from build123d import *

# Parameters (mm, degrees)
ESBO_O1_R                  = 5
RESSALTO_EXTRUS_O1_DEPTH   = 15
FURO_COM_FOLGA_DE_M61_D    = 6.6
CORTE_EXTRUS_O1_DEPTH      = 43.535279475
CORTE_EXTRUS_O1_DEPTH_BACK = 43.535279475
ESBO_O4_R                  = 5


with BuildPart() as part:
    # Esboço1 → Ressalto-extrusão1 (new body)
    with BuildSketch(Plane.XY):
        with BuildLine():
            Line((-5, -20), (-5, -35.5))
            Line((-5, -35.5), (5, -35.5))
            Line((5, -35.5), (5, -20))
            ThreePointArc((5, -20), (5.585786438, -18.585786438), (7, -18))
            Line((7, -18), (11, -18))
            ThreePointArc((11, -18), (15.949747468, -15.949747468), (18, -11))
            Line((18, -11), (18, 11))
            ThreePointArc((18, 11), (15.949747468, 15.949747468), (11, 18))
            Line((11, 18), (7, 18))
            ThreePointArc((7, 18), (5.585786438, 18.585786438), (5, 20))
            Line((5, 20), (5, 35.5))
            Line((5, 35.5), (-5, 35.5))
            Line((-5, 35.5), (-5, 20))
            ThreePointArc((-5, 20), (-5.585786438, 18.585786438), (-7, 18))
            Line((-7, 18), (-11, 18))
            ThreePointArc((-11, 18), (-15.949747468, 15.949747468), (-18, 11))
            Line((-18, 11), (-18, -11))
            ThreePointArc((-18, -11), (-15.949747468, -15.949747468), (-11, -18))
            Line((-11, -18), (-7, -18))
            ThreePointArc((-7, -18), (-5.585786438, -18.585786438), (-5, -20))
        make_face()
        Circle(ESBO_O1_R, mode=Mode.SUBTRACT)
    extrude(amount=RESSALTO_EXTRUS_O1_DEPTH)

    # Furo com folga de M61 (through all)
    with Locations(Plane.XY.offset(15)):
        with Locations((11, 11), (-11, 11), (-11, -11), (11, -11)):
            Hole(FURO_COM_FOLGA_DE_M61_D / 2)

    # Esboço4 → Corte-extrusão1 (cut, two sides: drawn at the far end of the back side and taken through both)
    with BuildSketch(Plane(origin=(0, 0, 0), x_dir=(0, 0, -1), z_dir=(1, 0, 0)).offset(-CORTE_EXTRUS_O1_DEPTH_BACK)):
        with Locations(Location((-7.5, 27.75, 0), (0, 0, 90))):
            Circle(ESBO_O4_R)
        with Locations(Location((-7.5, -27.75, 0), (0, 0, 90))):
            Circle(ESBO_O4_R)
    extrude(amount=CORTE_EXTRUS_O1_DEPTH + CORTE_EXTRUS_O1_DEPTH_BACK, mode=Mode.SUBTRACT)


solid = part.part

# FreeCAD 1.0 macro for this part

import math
import FreeCAD as App
import Part
import Sketcher

V = App.Vector

doc = App.newDocument("Part")
params = doc.addObject("Spreadsheet::Sheet", "Params")
for row, (alias, value) in enumerate([
    ("sketch1_diameter", "10 mm"),
    ("sketch1_radius", "2 mm"),
    ("sketch1_radius2", "7 mm"),
    ("sketch1_width", "10 mm"),
    ("sketch1_width2", "4 mm"),
    ("pad1_length", "15 mm"),
    ("sketch2_diameter", "6.6 mm"),
    ("hole_diameter", "6.6 mm"),
    ("sketch3_diameter", "10 mm"),
], start=1):
    params.set(f"A{row}", alias)
    params.set(f"B{row}", "=" + value)
    params.setAlias(f"B{row}", alias)

body = doc.addObject("PartDesign::Body", "Body")

# Sketch on XY plane
sketch1 = body.newObject("Sketcher::SketchObject", "Sketch")
sketch1.AttachmentSupport = (doc.getObject("XY_Plane"), [""])
sketch1.MapMode = "FlatFace"
sketch1.addGeometry(Part.LineSegment(V(-5, -20, 0), V(-5, -35.5, 0)), False)
sketch1.addGeometry(Part.LineSegment(V(-5, -35.5, 0), V(5, -35.5, 0)), False)
sketch1.addGeometry(Part.LineSegment(V(5, -35.5, 0), V(5, -20, 0)), False)
sketch1.addGeometry(Part.ArcOfCircle(Part.Circle(V(7, -20, 0), V(0, 0, 1), 2), math.radians(90), math.radians(180)), False)
sketch1.addGeometry(Part.LineSegment(V(7, -18, 0), V(11, -18, 0)), False)
sketch1.addGeometry(Part.ArcOfCircle(Part.Circle(V(11, -11, 0), V(0, 0, 1), 7), math.radians(-90), math.radians(0)), False)
sketch1.addGeometry(Part.LineSegment(V(18, -11, 0), V(18, 11, 0)), False)
sketch1.addGeometry(Part.ArcOfCircle(Part.Circle(V(11, 11, 0), V(0, 0, 1), 7), math.radians(0), math.radians(90)), False)
sketch1.addGeometry(Part.LineSegment(V(11, 18, 0), V(7, 18, 0)), False)
sketch1.addGeometry(Part.ArcOfCircle(Part.Circle(V(7, 20, 0), V(0, 0, 1), 2), math.radians(-180), math.radians(-90)), False)
sketch1.addGeometry(Part.LineSegment(V(5, 20, 0), V(5, 35.5, 0)), False)
sketch1.addGeometry(Part.LineSegment(V(5, 35.5, 0), V(-5, 35.5, 0)), False)
sketch1.addGeometry(Part.LineSegment(V(-5, 35.5, 0), V(-5, 20, 0)), False)
sketch1.addGeometry(Part.ArcOfCircle(Part.Circle(V(-7, 20, 0), V(0, 0, 1), 2), math.radians(-90), math.radians(0)), False)
sketch1.addGeometry(Part.LineSegment(V(-7, 18, 0), V(-11, 18, 0)), False)
sketch1.addGeometry(Part.ArcOfCircle(Part.Circle(V(-11, 11, 0), V(0, 0, 1), 7), math.radians(90), math.radians(180)), False)
sketch1.addGeometry(Part.LineSegment(V(-18, 11, 0), V(-18, -11, 0)), False)
sketch1.addGeometry(Part.ArcOfCircle(Part.Circle(V(-11, -11, 0), V(0, 0, 1), 7), math.radians(-180), math.radians(-90)), False)
sketch1.addGeometry(Part.LineSegment(V(-11, -18, 0), V(-7, -18, 0)), False)
sketch1.addGeometry(Part.ArcOfCircle(Part.Circle(V(-7, -20, 0), V(0, 0, 1), 2), math.radians(0), math.radians(90)), False)
sketch1.addGeometry(Part.Circle(V(0, 0, 0), V(0, 0, 1), 5), False)
sketch1.addConstraint(Sketcher.Constraint("Coincident", 0, 2, 1, 1))
sketch1.addConstraint(Sketcher.Constraint("Coincident", 1, 2, 2, 1))
sketch1.addConstraint(Sketcher.Constraint("Tangent", 2, 2, 3, 2))
sketch1.addConstraint(Sketcher.Constraint("Tangent", 3, 1, 4, 1))
sketch1.addConstraint(Sketcher.Constraint("Tangent", 4, 2, 5, 1))
sketch1.addConstraint(Sketcher.Constraint("Tangent", 5, 2, 6, 1))
sketch1.addConstraint(Sketcher.Constraint("Tangent", 6, 2, 7, 1))
sketch1.addConstraint(Sketcher.Constraint("Tangent", 7, 2, 8, 1))
sketch1.addConstraint(Sketcher.Constraint("Tangent", 8, 2, 9, 2))
sketch1.addConstraint(Sketcher.Constraint("Tangent", 9, 1, 10, 1))
sketch1.addConstraint(Sketcher.Constraint("Coincident", 10, 2, 11, 1))
sketch1.addConstraint(Sketcher.Constraint("Coincident", 11, 2, 12, 1))
sketch1.addConstraint(Sketcher.Constraint("Tangent", 12, 2, 13, 2))
sketch1.addConstraint(Sketcher.Constraint("Tangent", 13, 1, 14, 1))
sketch1.addConstraint(Sketcher.Constraint("Tangent", 14, 2, 15, 1))
sketch1.addConstraint(Sketcher.Constraint("Tangent", 15, 2, 16, 1))
sketch1.addConstraint(Sketcher.Constraint("Tangent", 16, 2, 17, 1))
sketch1.addConstraint(Sketcher.Constraint("Tangent", 17, 2, 18, 1))
sketch1.addConstraint(Sketcher.Constraint("Tangent", 18, 2, 19, 2))
sketch1.addConstraint(Sketcher.Constraint("Tangent", 19, 1, 0, 1))
sketch1.addConstraint(Sketcher.Constraint("Vertical", 0))
sketch1.addConstraint(Sketcher.Constraint("Horizontal", 1))
sketch1.addConstraint(Sketcher.Constraint("Vertical", 2))
sketch1.addConstraint(Sketcher.Constraint("Horizontal", 4))
sketch1.addConstraint(Sketcher.Constraint("Vertical", 6))
sketch1.addConstraint(Sketcher.Constraint("Horizontal", 8))
sketch1.addConstraint(Sketcher.Constraint("Vertical", 10))
sketch1.addConstraint(Sketcher.Constraint("Horizontal", 11))
sketch1.addConstraint(Sketcher.Constraint("Vertical", 12))
sketch1.addConstraint(Sketcher.Constraint("Horizontal", 14))
sketch1.addConstraint(Sketcher.Constraint("Vertical", 16))
sketch1.addConstraint(Sketcher.Constraint("Horizontal", 18))
sketch1.addConstraint(Sketcher.Constraint("Coincident", 20, 3, -1, 1))
sketch1.addConstraint(Sketcher.Constraint("Equal", 5, 7))
sketch1.addConstraint(Sketcher.Constraint("Equal", 3, 9))
sketch1.addConstraint(Sketcher.Constraint("Equal", 9, 13))
sketch1.addConstraint(Sketcher.Constraint("Equal", 7, 15))
sketch1.addConstraint(Sketcher.Constraint("Equal", 15, 17))
sketch1.addConstraint(Sketcher.Constraint("Equal", 13, 19))
sketch1.addConstraint(Sketcher.Constraint("Symmetric", 3, 3, 13, 3, -1, 1))
sketch1.addConstraint(Sketcher.Constraint("Symmetric", 7, 3, 17, 3, -1, 1))
sketch1.addConstraint(Sketcher.Constraint("Symmetric", 0, 2, 10, 2, -1, 1))
sketch1.addConstraint(Sketcher.Constraint("Symmetric", 9, 3, 13, 3, -2))
sketch1.addConstraint(Sketcher.Constraint("Diameter", 20, 10.0))
sketch1.addConstraint(Sketcher.Constraint("Radius", 3, 2.0))
sketch1.addConstraint(Sketcher.Constraint("Radius", 5, 7.0))
sketch1.addConstraint(Sketcher.Constraint("DistanceX", 1, 1, 1, 2, 10.0))
sketch1.addConstraint(Sketcher.Constraint("DistanceX", 4, 1, 4, 2, 4.0))
sketch1.addConstraint(Sketcher.Constraint("DistanceY", 6, 1, 6, 2, 22.0))
sketch1.addConstraint(Sketcher.Constraint("DistanceY", 0, 2, 0, 1, 15.5))
sketch1.setExpression("Constraints[43]", "Params.sketch1_diameter")
sketch1.setExpression("Constraints[44]", "Params.sketch1_radius")
sketch1.setExpression("Constraints[45]", "Params.sketch1_radius2")
sketch1.setExpression("Constraints[46]", "Params.sketch1_width")
sketch1.setExpression("Constraints[47]", "Params.sketch1_width2")
pad1 = body.newObject("PartDesign::Pad", "Pad")
pad1.Profile = sketch1
pad1.setExpression("Length", "Params.pad1_length")

# Sketch on XY plane
sketch2 = body.newObject("Sketcher::SketchObject", "Sketch001")
sketch2.AttachmentSupport = (doc.getObject("XY_Plane"), [""])
sketch2.MapMode = "FlatFace"
sketch2.AttachmentOffset = App.Placement(V(0, 0, 15), App.Rotation())
sketch2.addGeometry(Part.Circle(V(11, 11, 0), V(0, 0, 1), 3.3), False)
sketch2.addGeometry(Part.Circle(V(-11, 11, 0), V(0, 0, 1), 3.3), False)
sketch2.addGeometry(Part.Circle(V(-11, -11, 0), V(0, 0, 1), 3.3), False)
sketch2.addGeometry(Part.Circle(V(11, -11, 0), V(0, 0, 1), 3.3), False)
sketch2.addConstraint(Sketcher.Constraint("Equal", 0, 1))
sketch2.addConstraint(Sketcher.Constraint("Equal", 1, 2))
sketch2.addConstraint(Sketcher.Constraint("Equal", 2, 3))
sketch2.addConstraint(Sketcher.Constraint("Symmetric", 0, 3, 2, 3, -1, 1))
sketch2.addConstraint(Sketcher.Constraint("Symmetric", 1, 3, 3, 3, -1, 1))
sketch2.addConstraint(Sketcher.Constraint("Symmetric", 0, 3, 1, 3, -2))
sketch2.addConstraint(Sketcher.Constraint("Diameter", 0, 6.6))
sketch2.addConstraint(Sketcher.Constraint("DistanceX", -1, 1, 0, 3, 11.0))
sketch2.addConstraint(Sketcher.Constraint("DistanceY", -1, 1, 0, 3, 11.0))
sketch2.setExpression("Constraints[6]", "Params.sketch2_diameter")
doc.recompute()
hole = body.newObject("PartDesign::Hole", "Hole")
hole.Profile = sketch2
hole.ThreadType = "None"
hole.setExpression("Diameter", "Params.hole_diameter")
hole.DepthType = "ThroughAll"

# Sketch on YZ plane
sketch3 = body.newObject("Sketcher::SketchObject", "Sketch002")
sketch3.AttachmentSupport = (doc.getObject("YZ_Plane"), [""])
sketch3.MapMode = "FlatFace"
sketch3.addGeometry(Part.Circle(V(28, 8, 0), V(0, 0, 1), 5), False)
sketch3.addGeometry(Part.Circle(V(-28, 8, 0), V(0, 0, 1), 5), False)
sketch3.addConstraint(Sketcher.Constraint("Equal", 0, 1))
sketch3.addConstraint(Sketcher.Constraint("Symmetric", 0, 3, 1, 3, -2))
sketch3.addConstraint(Sketcher.Constraint("Diameter", 0, 10.0))
sketch3.addConstraint(Sketcher.Constraint("DistanceY", -1, 1, 0, 3, 7.5))
sketch3.addConstraint(Sketcher.Constraint("DistanceX", 1, 3, 0, 3, 55.5))
sketch3.setExpression("Constraints[2]", "Params.sketch3_diameter")
pocket1 = body.newObject("PartDesign::Pocket", "Pocket")
pocket1.Profile = sketch3
pocket1.Type = "ThroughAll"
pocket1.Midplane = True

doc.recompute()
